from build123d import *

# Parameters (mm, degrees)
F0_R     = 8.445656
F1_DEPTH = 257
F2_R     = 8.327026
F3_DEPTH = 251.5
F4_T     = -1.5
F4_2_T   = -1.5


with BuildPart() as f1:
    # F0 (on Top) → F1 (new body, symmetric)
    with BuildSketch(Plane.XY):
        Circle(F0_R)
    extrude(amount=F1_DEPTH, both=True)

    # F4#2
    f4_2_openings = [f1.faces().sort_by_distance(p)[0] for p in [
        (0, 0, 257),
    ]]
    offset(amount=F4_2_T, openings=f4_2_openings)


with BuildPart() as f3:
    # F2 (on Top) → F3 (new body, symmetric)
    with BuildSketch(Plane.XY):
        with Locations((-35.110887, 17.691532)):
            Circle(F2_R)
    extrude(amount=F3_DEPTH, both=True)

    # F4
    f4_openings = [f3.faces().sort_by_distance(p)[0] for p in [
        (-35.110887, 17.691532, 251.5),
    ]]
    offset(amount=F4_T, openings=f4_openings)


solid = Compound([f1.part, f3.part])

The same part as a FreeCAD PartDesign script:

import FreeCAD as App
import Part
import Sketcher
from FreeCAD import Vector
Q = App.Units.Quantity


def faces_at(feature, points):
    """Names of the faces that lie closest to the given points."""
    faces = feature.Shape.Faces
    near = lambda p: min(range(len(faces)), key=lambda i: faces[i].distToShape(Part.Vertex(*p))[0])
    return sorted({f"Face{near(p) + 1}" for p in points})

doc = App.newDocument("Part")
params = doc.addObject("Spreadsheet::Sheet", "Params")
for row, (alias, value) in enumerate([
    ("pad1_length", "514 mm"),
    ("thickness_wall", "1.5 mm"),
    ("pad2_length", "503 mm"),
    ("thickness2_wall", "1.5 mm"),
], start=1):
    params.set(f"A{row}", alias)
    params.set(f"B{row}", "=" + value)
    params.setAlias(f"B{row}", alias)

body = doc.addObject("PartDesign::Body", "Body")

# Sketch on XY plane
sketch1 = doc.addObject("Sketcher::SketchObject", "Sketch")
body.addObject(sketch1)
sketch1.AttachmentSupport = (doc.XY_Plane, [""])
sketch1.MapMode = "FlatFace"
sketch1.addGeometry(Part.Circle(Vector(0, 0, 0), Vector(0, 0, 1), 8), False)
sketch1.addConstraint([
    Sketcher.Constraint("Coincident", 0, 3, -1, 1),
    Sketcher.Constraint("Diameter", 0, Q("16.891312 mm")),
])
pad1 = doc.addObject("PartDesign::Pad", "Pad")
body.addObject(pad1)
pad1.Profile = sketch1
pad1.setExpression("Length", "Params.pad1_length")
pad1.Midplane = True
doc.recompute()

thickness = doc.addObject("PartDesign::Thickness", "Thickness")
body.addObject(thickness)
thickness.Base = (pad1, faces_at(pad1, [(0, 0, 257)]))
thickness.setExpression("Value", "Params.thickness_wall")
thickness.Reversed = True
thickness.Join = "Arc"
body2 = doc.addObject("PartDesign::Body", "Body001")

# Sketch on XY plane
sketch2 = doc.addObject("Sketcher::SketchObject", "Sketch001")
body2.addObject(sketch2)
sketch2.AttachmentSupport = (doc.getObject("XY_Plane001"), [""])
sketch2.MapMode = "FlatFace"
sketch2.addGeometry(Part.Circle(Vector(-35, 18, 0), Vector(0, 0, 1), 8), False)
sketch2.addConstraint([
    Sketcher.Constraint("Diameter", 0, Q("16.654052 mm")),
    Sketcher.Constraint("DistanceY", -1, 1, 0, 3, Q("17.691532 mm")),
    Sketcher.Constraint("DistanceX", 0, 3, -1, 1, Q("35.110887 mm")),
])
pad2 = doc.addObject("PartDesign::Pad", "Pad001")
body2.addObject(pad2)
pad2.Profile = sketch2
pad2.setExpression("Length", "Params.pad2_length")
pad2.Midplane = True
doc.recompute()

thickness2 = doc.addObject("PartDesign::Thickness", "Thickness001")
body2.addObject(thickness2)
thickness2.Base = (pad2, faces_at(pad2, [(-35.111, 17.692, 251.5)]))
thickness2.setExpression("Value", "Params.thickness2_wall")
thickness2.Reversed = True
thickness2.Join = "Arc"

doc.recompute()
